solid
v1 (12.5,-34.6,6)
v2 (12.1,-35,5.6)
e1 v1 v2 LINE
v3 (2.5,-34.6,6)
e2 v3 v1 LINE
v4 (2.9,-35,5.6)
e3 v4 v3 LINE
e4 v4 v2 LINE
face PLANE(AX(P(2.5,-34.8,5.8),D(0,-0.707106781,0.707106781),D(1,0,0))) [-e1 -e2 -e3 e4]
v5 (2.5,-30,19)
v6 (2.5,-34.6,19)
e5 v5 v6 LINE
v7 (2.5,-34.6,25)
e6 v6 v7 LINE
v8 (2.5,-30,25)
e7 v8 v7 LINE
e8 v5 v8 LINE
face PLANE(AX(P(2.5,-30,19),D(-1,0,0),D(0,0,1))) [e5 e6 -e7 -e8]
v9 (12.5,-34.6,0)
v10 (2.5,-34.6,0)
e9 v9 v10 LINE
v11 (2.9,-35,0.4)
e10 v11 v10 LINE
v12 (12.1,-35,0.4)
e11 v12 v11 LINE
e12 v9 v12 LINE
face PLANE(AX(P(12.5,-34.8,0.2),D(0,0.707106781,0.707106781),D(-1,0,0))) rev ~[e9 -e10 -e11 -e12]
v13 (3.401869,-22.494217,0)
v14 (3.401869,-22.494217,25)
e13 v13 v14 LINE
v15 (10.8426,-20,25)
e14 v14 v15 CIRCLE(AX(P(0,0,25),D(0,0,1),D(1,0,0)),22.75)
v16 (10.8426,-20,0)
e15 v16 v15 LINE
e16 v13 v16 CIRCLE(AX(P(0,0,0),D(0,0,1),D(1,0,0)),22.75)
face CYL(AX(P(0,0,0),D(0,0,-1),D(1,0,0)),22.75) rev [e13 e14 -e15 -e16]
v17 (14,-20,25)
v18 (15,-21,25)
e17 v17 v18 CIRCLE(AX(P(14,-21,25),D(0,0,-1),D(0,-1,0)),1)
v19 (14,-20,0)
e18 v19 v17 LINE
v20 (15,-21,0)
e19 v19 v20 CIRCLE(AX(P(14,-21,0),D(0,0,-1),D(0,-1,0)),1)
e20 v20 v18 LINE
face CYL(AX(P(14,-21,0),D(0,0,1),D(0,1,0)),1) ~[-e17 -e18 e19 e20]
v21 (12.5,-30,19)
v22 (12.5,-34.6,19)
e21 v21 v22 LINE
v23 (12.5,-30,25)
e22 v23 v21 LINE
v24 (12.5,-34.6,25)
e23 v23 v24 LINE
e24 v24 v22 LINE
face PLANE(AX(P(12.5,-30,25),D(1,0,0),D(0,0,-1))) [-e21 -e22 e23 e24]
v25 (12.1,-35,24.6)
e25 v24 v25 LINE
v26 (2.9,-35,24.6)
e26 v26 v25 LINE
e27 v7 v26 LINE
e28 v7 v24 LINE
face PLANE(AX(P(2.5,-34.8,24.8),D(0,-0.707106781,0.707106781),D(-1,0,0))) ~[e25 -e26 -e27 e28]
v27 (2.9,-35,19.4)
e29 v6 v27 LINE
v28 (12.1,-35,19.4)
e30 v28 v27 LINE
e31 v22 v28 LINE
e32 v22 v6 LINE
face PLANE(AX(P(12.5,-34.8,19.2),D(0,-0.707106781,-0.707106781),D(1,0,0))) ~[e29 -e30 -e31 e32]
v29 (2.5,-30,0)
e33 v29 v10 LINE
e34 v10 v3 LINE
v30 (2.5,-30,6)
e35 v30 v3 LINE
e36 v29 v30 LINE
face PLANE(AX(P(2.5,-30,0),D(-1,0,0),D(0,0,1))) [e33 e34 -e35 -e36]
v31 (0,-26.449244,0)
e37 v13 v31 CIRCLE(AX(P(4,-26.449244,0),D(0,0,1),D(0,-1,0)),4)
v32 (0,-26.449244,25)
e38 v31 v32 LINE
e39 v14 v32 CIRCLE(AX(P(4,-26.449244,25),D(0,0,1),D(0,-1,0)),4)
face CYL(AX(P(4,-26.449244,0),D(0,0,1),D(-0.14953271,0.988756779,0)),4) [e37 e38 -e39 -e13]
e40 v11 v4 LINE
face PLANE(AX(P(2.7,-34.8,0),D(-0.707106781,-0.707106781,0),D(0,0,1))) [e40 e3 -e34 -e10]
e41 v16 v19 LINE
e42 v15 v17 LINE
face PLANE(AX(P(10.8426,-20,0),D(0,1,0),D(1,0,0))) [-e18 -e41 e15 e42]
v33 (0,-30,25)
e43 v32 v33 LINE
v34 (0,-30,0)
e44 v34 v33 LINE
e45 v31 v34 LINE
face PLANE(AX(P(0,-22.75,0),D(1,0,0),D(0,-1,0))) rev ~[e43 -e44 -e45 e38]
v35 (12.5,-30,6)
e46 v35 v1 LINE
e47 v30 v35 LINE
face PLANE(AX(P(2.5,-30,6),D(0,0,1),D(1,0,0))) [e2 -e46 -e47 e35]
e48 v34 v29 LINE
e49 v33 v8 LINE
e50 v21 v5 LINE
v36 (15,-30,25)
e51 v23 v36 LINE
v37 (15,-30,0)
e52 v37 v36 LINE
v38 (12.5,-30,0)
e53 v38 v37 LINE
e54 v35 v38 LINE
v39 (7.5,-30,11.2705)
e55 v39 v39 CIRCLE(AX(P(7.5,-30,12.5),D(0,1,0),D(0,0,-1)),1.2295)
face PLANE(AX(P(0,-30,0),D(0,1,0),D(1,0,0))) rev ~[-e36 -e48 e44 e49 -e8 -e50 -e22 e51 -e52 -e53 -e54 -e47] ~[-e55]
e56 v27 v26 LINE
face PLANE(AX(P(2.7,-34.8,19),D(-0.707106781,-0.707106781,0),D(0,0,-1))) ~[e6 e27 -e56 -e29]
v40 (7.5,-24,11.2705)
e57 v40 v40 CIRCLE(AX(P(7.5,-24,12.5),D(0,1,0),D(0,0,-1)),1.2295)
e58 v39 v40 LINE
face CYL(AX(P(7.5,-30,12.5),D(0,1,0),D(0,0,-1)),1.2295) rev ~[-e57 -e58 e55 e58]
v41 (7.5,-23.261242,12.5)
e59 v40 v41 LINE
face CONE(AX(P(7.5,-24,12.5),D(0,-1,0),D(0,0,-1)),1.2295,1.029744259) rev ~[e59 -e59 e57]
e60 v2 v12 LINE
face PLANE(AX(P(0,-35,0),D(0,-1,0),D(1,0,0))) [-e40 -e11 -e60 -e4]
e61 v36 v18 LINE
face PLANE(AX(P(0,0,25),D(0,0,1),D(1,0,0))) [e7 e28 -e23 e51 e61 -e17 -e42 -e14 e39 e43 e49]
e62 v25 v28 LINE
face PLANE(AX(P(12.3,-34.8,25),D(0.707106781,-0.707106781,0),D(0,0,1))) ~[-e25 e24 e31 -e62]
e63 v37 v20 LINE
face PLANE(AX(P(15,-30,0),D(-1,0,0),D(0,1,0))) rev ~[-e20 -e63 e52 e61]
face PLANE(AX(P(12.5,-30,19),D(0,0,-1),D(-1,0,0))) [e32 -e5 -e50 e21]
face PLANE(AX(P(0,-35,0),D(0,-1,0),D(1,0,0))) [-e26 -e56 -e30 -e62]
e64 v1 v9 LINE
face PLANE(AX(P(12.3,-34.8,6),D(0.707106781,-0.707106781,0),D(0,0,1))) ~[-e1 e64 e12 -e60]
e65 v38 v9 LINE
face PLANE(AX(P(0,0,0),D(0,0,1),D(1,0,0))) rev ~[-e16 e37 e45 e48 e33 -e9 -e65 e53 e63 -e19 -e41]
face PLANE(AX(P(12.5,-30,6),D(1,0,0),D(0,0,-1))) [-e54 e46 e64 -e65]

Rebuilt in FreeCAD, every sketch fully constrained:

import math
import FreeCAD as App
import Part
import Sketcher
from FreeCAD import Vector
Q = App.Units.Quantity


def edges_at(feature, points):
    """Names of the edges that pass closest to the given points."""
    edges = feature.Shape.Edges
    near = lambda p: min(range(len(edges)), key=lambda i: edges[i].distToShape(Part.Vertex(*p))[0])
    return sorted({f"Edge{near(p) + 1}" for p in points})


def add_polygon(sketch, points):
    """Adds a closed chain of lines whose ends are joined by coincident constraints."""
    first, n = sketch.GeometryCount, len(points)
    for a, b in zip(points, points[1:] + points[:1]):
        sketch.addGeometry(Part.LineSegment(App.Vector(*a, 0), App.Vector(*b, 0)), False)
    for i in range(n):
        sketch.addConstraint(Sketcher.Constraint("Coincident", first + i, 2, first + (i + 1) % n, 1))

doc = App.newDocument("Part")
params = doc.addObject("Spreadsheet::Sheet", "Params")
for row, (alias, value) in enumerate([
    ("sketch1_width", "15 mm"),
    ("sketch1_height", "10 mm"),
    ("sketch1_radius", "22.75 mm"),
    ("pad1_length", "25 mm"),
    ("fillet_radius", "4 mm"),
    ("sketch2_width", "10 mm"),
    ("sketch2_height", "6 mm"),
    ("pad2_length", "5 mm"),
    ("hole_diameter", "2.459 mm"),
    ("hole_depth", "6 mm"),
    ("fillet2_radius", "1 mm"),
    ("chamfer_size", "0.4 mm"),
], start=1):
    params.set(f"A{row}", alias)
    params.set(f"B{row}", "=" + value)
    params.setAlias(f"B{row}", alias)

body = doc.addObject("PartDesign::Body", "Body")

sketch1 = doc.addObject("Sketcher::SketchObject", "Sketch")
body.addObject(sketch1)
sketch1.AttachmentSupport = (doc.XY_Plane, [""])
sketch1.MapMode = "FlatFace"
sketch1.addGeometry(Part.ArcOfCircle(Part.Circle(Vector(0, 0, 0), Vector(0, 0, 1), 22.8), math.radians(-90), math.radians(-62)), False)
sketch1.addGeometry(Part.LineSegment(Vector(0, -22.8, 0), Vector(0, -30, 0)), False)
sketch1.addGeometry(Part.LineSegment(Vector(0, -30, 0), Vector(15, -30, 0)), False)
sketch1.addGeometry(Part.LineSegment(Vector(15, -30, 0), Vector(15, -20, 0)), False)
sketch1.addGeometry(Part.LineSegment(Vector(15, -20, 0), Vector(10.8, -20, 0)), False)
sketch1.addConstraint(Sketcher.Constraint("Coincident", 0, 1, 1, 1))
sketch1.addConstraint(Sketcher.Constraint("Coincident", 1, 2, 2, 1))
sketch1.addConstraint(Sketcher.Constraint("Coincident", 2, 2, 3, 1))
sketch1.addConstraint(Sketcher.Constraint("Coincident", 3, 2, 4, 1))
sketch1.addConstraint(Sketcher.Constraint("Coincident", 4, 2, 0, 2))
sketch1.addConstraint(Sketcher.Constraint("Vertical", 1))
sketch1.addConstraint(Sketcher.Constraint("Horizontal", 2))
sketch1.addConstraint(Sketcher.Constraint("Vertical", 3))
sketch1.addConstraint(Sketcher.Constraint("Horizontal", 4))
sketch1.addConstraint(Sketcher.Constraint("Coincident", 0, 3, -1, 1))
sketch1.addConstraint(Sketcher.Constraint("PointOnObject", 0, 1, -2))
sketch1.addConstraint(Sketcher.Constraint("DistanceX", 2, 1, 2, 2, Q("15 mm")))
sketch1.addConstraint(Sketcher.Constraint("DistanceY", 3, 1, 3, 2, Q("10 mm")))
sketch1.addConstraint(Sketcher.Constraint("Radius", 0, Q("22.75 mm")))
sketch1.addConstraint(Sketcher.Constraint("DistanceY", 1, 2, -1, 1, Q("30 mm")))
sketch1.setExpression("Constraints[11]", "Params.sketch1_width")
sketch1.setExpression("Constraints[12]", "Params.sketch1_height")
sketch1.setExpression("Constraints[13]", "Params.sketch1_radius")
pad1 = doc.addObject("PartDesign::Pad", "Pad")
body.addObject(pad1)
pad1.Profile = sketch1
pad1.setExpression("Length", "Params.pad1_length")
doc.recompute()

fillet = doc.addObject("PartDesign::Fillet", "Fillet")
body.addObject(fillet)
fillet.Base = (pad1, edges_at(pad1, [(0, -22.75, 12.5)]))
fillet.setExpression("Radius", "Params.fillet_radius")

sketch2 = doc.addObject("Sketcher::SketchObject", "Sketch001")
body.addObject(sketch2)
sketch2.AttachmentSupport = (doc.XZ_Plane, [""])
sketch2.MapMode = "FlatFace"
sketch2.AttachmentOffset = App.Placement(Vector(0, 0, 30), App.Rotation())
add_polygon(sketch2, [(12, 25), (2, 25), (2, 19), (12, 19)])
add_polygon(sketch2, [(2, 6), (2, 0), (12, 0), (12, 6)])
sketch2.addConstraint(Sketcher.Constraint("Horizontal", 0))
sketch2.addConstraint(Sketcher.Constraint("Vertical", 1))
sketch2.addConstraint(Sketcher.Constraint("Horizontal", 2))
sketch2.addConstraint(Sketcher.Constraint("Vertical", 3))
sketch2.addConstraint(Sketcher.Constraint("Vertical", 4))
sketch2.addConstraint(Sketcher.Constraint("Horizontal", 5))
sketch2.addConstraint(Sketcher.Constraint("Vertical", 6))
sketch2.addConstraint(Sketcher.Constraint("Horizontal", 7))
sketch2.addConstraint(Sketcher.Constraint("PointOnObject", 4, 2, -1))
sketch2.addConstraint(Sketcher.Constraint("Vertical", 1, 2, 4, 2))
sketch2.addConstraint(Sketcher.Constraint("Vertical", 3, 2, 5, 2))
sketch2.addConstraint(Sketcher.Constraint("Equal", 3, 4))
sketch2.addConstraint(Sketcher.Constraint("DistanceX", 0, 2, 0, 1, Q("10 mm")))
sketch2.addConstraint(Sketcher.Constraint("DistanceY", 1, 2, 1, 1, Q("6 mm")))
sketch2.addConstraint(Sketcher.Constraint("DistanceY", -1, 1, 0, 2, Q("25 mm")))
sketch2.addConstraint(Sketcher.Constraint("DistanceX", -1, 1, 0, 2, Q("2.5 mm")))
sketch2.setExpression("Constraints[20]", "Params.sketch2_width")
sketch2.setExpression("Constraints[21]", "Params.sketch2_height")
pad2 = doc.addObject("PartDesign::Pad", "Pad001")
body.addObject(pad2)
pad2.Profile = sketch2
pad2.setExpression("Length", "Params.pad2_length")

sketch3 = doc.addObject("Sketcher::SketchObject", "Sketch002")
body.addObject(sketch3)
sketch3.AttachmentSupport = (doc.XZ_Plane, [""])
sketch3.MapMode = "FlatFace"
sketch3.AttachmentOffset = App.Placement(Vector(0, 0, 30), App.Rotation())
sketch3.addGeometry(Part.Circle(Vector(7.5, 12.5, 0), Vector(0, 0, 1), 1.2), False)
sketch3.addConstraint(Sketcher.Constraint("Diameter", 0, Q("2.459 mm")))
sketch3.addConstraint(Sketcher.Constraint("DistanceX", -1, 1, 0, 3, Q("7.5 mm")))
sketch3.addConstraint(Sketcher.Constraint("DistanceY", -1, 1, 0, 3, Q("12.5 mm")))
doc.recompute()
hole = doc.addObject("PartDesign::Hole", "Hole")
body.addObject(hole)
hole.Profile = sketch3
hole.ThreadType = "None"
hole.setExpression("Diameter", "Params.hole_diameter")
hole.DepthType = "Dimension"
hole.setExpression("Depth", "Params.hole_depth")
hole.DrillPoint = "Angled"
hole.DrillPointAngle = 118
doc.recompute()

fillet2 = doc.addObject("PartDesign::Fillet", "Fillet001")
body.addObject(fillet2)
fillet2.Base = (hole, edges_at(hole, [(15, -20, 12.5)]))
fillet2.setExpression("Radius", "Params.fillet2_radius")
doc.recompute()

chamfer = doc.addObject("PartDesign::Chamfer", "Chamfer")
body.addObject(chamfer)
chamfer.Base = (fillet2, edges_at(fillet2, [
    (7.5, -35, 25),
    (2.5, -35, 22),
    (7.5, -35, 19),
    (12.5, -35, 22),
    (12.5, -35, 3),
    (7.5, -35, 6),
    (2.5, -35, 3),
    (7.5, -35, 0),
]))
chamfer.setExpression("Size", "Params.chamfer_size")

doc.recompute()
